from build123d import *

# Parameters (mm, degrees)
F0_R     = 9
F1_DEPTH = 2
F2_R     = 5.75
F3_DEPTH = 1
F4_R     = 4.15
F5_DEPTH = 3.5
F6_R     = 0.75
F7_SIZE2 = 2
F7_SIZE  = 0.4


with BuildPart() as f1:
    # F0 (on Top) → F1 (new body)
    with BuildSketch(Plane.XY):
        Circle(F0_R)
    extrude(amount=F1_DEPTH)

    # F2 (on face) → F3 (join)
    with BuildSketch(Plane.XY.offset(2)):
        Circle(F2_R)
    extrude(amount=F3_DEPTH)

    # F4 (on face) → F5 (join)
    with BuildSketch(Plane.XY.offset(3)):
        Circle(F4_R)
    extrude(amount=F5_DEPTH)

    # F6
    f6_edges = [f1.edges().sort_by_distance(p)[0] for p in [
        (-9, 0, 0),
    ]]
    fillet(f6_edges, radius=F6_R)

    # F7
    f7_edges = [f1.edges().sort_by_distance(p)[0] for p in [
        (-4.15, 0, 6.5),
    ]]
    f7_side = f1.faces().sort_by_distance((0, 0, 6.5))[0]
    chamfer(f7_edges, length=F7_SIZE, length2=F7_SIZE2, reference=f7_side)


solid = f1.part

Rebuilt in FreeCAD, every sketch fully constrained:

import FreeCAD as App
import Part
import Sketcher

V = App.Vector


def edges_at(feature, points):
    """Names of the edges that pass closest to the given points."""
    edges = feature.Shape.Edges
    near = lambda p: min(range(len(edges)), key=lambda i: edges[i].distToShape(Part.Vertex(*p))[0])
    return sorted({f"Edge{near(p) + 1}" for p in points})

doc = App.newDocument("Part")
params = doc.addObject("Spreadsheet::Sheet", "Params")
for row, (alias, value) in enumerate([
    ("sketch1_diameter", "18 mm"),
    ("pad1_length", "2 mm"),
    ("sketch2_diameter", "11.5 mm"),
    ("pad2_length", "1 mm"),
    ("sketch3_diameter", "8.3 mm"),
    ("pad3_length", "3.5 mm"),
    ("fillet_radius", "0.75 mm"),
    ("chamfer_size", "0.4 mm"),
    ("chamfer_size2", "2 mm"),
], start=1):
    params.set(f"A{row}", alias)
    params.set(f"B{row}", "=" + value)
    params.setAlias(f"B{row}", alias)

body = doc.addObject("PartDesign::Body", "Body")

sketch1 = body.newObject("Sketcher::SketchObject", "Sketch")
sketch1.AttachmentSupport = (doc.getObject("XY_Plane"), [""])
sketch1.MapMode = "FlatFace"
sketch1.addGeometry(Part.Circle(V(0, 0, 0), V(0, 0, 1), 9), False)
sketch1.addConstraint([
    Sketcher.Constraint("Coincident", 0, 3, -1, 1),
    Sketcher.Constraint("Diameter", 0, 18.0),
])
sketch1.setExpression("Constraints[1]", "Params.sketch1_diameter")
pad1 = body.newObject("PartDesign::Pad", "Pad")
pad1.Profile = sketch1
pad1.setExpression("Length", "Params.pad1_length")

sketch2 = body.newObject("Sketcher::SketchObject", "Sketch001")
sketch2.AttachmentSupport = (doc.getObject("XY_Plane"), [""])
sketch2.MapMode = "FlatFace"
sketch2.AttachmentOffset = App.Placement(V(0, 0, 2), App.Rotation())
sketch2.addGeometry(Part.Circle(V(0, 0, 0), V(0, 0, 1), 6), False)
sketch2.addConstraint([
    Sketcher.Constraint("Coincident", 0, 3, -1, 1),
    Sketcher.Constraint("Diameter", 0, 11.5),
])
sketch2.setExpression("Constraints[1]", "Params.sketch2_diameter")
pad2 = body.newObject("PartDesign::Pad", "Pad001")
pad2.Profile = sketch2
pad2.setExpression("Length", "Params.pad2_length")

sketch3 = body.newObject("Sketcher::SketchObject", "Sketch002")
sketch3.AttachmentSupport = (doc.getObject("XY_Plane"), [""])
sketch3.MapMode = "FlatFace"
sketch3.AttachmentOffset = App.Placement(V(0, 0, 3), App.Rotation())
sketch3.addGeometry(Part.Circle(V(0, 0, 0), V(0, 0, 1), 4.2), False)
sketch3.addConstraint([
    Sketcher.Constraint("Coincident", 0, 3, -1, 1),
    Sketcher.Constraint("Diameter", 0, 8.3),
])
sketch3.setExpression("Constraints[1]", "Params.sketch3_diameter")
pad3 = body.newObject("PartDesign::Pad", "Pad002")
pad3.Profile = sketch3
pad3.setExpression("Length", "Params.pad3_length")
doc.recompute()

fillet = body.newObject("PartDesign::Fillet", "Fillet")
fillet.Base = (pad3, edges_at(pad3, [(-9, 0, 0)]))
fillet.setExpression("Radius", "Params.fillet_radius")
doc.recompute()

chamfer = body.newObject("PartDesign::Chamfer", "Chamfer")
chamfer.Base = (fillet, edges_at(fillet, [(-4.15, 0, 6.5)]))
chamfer.ChamferType = "Two distances"
chamfer.setExpression("Size", "Params.chamfer_size")
chamfer.setExpression("Size2", "Params.chamfer_size2")
chamfer.FlipDirection = True

doc.recompute()
